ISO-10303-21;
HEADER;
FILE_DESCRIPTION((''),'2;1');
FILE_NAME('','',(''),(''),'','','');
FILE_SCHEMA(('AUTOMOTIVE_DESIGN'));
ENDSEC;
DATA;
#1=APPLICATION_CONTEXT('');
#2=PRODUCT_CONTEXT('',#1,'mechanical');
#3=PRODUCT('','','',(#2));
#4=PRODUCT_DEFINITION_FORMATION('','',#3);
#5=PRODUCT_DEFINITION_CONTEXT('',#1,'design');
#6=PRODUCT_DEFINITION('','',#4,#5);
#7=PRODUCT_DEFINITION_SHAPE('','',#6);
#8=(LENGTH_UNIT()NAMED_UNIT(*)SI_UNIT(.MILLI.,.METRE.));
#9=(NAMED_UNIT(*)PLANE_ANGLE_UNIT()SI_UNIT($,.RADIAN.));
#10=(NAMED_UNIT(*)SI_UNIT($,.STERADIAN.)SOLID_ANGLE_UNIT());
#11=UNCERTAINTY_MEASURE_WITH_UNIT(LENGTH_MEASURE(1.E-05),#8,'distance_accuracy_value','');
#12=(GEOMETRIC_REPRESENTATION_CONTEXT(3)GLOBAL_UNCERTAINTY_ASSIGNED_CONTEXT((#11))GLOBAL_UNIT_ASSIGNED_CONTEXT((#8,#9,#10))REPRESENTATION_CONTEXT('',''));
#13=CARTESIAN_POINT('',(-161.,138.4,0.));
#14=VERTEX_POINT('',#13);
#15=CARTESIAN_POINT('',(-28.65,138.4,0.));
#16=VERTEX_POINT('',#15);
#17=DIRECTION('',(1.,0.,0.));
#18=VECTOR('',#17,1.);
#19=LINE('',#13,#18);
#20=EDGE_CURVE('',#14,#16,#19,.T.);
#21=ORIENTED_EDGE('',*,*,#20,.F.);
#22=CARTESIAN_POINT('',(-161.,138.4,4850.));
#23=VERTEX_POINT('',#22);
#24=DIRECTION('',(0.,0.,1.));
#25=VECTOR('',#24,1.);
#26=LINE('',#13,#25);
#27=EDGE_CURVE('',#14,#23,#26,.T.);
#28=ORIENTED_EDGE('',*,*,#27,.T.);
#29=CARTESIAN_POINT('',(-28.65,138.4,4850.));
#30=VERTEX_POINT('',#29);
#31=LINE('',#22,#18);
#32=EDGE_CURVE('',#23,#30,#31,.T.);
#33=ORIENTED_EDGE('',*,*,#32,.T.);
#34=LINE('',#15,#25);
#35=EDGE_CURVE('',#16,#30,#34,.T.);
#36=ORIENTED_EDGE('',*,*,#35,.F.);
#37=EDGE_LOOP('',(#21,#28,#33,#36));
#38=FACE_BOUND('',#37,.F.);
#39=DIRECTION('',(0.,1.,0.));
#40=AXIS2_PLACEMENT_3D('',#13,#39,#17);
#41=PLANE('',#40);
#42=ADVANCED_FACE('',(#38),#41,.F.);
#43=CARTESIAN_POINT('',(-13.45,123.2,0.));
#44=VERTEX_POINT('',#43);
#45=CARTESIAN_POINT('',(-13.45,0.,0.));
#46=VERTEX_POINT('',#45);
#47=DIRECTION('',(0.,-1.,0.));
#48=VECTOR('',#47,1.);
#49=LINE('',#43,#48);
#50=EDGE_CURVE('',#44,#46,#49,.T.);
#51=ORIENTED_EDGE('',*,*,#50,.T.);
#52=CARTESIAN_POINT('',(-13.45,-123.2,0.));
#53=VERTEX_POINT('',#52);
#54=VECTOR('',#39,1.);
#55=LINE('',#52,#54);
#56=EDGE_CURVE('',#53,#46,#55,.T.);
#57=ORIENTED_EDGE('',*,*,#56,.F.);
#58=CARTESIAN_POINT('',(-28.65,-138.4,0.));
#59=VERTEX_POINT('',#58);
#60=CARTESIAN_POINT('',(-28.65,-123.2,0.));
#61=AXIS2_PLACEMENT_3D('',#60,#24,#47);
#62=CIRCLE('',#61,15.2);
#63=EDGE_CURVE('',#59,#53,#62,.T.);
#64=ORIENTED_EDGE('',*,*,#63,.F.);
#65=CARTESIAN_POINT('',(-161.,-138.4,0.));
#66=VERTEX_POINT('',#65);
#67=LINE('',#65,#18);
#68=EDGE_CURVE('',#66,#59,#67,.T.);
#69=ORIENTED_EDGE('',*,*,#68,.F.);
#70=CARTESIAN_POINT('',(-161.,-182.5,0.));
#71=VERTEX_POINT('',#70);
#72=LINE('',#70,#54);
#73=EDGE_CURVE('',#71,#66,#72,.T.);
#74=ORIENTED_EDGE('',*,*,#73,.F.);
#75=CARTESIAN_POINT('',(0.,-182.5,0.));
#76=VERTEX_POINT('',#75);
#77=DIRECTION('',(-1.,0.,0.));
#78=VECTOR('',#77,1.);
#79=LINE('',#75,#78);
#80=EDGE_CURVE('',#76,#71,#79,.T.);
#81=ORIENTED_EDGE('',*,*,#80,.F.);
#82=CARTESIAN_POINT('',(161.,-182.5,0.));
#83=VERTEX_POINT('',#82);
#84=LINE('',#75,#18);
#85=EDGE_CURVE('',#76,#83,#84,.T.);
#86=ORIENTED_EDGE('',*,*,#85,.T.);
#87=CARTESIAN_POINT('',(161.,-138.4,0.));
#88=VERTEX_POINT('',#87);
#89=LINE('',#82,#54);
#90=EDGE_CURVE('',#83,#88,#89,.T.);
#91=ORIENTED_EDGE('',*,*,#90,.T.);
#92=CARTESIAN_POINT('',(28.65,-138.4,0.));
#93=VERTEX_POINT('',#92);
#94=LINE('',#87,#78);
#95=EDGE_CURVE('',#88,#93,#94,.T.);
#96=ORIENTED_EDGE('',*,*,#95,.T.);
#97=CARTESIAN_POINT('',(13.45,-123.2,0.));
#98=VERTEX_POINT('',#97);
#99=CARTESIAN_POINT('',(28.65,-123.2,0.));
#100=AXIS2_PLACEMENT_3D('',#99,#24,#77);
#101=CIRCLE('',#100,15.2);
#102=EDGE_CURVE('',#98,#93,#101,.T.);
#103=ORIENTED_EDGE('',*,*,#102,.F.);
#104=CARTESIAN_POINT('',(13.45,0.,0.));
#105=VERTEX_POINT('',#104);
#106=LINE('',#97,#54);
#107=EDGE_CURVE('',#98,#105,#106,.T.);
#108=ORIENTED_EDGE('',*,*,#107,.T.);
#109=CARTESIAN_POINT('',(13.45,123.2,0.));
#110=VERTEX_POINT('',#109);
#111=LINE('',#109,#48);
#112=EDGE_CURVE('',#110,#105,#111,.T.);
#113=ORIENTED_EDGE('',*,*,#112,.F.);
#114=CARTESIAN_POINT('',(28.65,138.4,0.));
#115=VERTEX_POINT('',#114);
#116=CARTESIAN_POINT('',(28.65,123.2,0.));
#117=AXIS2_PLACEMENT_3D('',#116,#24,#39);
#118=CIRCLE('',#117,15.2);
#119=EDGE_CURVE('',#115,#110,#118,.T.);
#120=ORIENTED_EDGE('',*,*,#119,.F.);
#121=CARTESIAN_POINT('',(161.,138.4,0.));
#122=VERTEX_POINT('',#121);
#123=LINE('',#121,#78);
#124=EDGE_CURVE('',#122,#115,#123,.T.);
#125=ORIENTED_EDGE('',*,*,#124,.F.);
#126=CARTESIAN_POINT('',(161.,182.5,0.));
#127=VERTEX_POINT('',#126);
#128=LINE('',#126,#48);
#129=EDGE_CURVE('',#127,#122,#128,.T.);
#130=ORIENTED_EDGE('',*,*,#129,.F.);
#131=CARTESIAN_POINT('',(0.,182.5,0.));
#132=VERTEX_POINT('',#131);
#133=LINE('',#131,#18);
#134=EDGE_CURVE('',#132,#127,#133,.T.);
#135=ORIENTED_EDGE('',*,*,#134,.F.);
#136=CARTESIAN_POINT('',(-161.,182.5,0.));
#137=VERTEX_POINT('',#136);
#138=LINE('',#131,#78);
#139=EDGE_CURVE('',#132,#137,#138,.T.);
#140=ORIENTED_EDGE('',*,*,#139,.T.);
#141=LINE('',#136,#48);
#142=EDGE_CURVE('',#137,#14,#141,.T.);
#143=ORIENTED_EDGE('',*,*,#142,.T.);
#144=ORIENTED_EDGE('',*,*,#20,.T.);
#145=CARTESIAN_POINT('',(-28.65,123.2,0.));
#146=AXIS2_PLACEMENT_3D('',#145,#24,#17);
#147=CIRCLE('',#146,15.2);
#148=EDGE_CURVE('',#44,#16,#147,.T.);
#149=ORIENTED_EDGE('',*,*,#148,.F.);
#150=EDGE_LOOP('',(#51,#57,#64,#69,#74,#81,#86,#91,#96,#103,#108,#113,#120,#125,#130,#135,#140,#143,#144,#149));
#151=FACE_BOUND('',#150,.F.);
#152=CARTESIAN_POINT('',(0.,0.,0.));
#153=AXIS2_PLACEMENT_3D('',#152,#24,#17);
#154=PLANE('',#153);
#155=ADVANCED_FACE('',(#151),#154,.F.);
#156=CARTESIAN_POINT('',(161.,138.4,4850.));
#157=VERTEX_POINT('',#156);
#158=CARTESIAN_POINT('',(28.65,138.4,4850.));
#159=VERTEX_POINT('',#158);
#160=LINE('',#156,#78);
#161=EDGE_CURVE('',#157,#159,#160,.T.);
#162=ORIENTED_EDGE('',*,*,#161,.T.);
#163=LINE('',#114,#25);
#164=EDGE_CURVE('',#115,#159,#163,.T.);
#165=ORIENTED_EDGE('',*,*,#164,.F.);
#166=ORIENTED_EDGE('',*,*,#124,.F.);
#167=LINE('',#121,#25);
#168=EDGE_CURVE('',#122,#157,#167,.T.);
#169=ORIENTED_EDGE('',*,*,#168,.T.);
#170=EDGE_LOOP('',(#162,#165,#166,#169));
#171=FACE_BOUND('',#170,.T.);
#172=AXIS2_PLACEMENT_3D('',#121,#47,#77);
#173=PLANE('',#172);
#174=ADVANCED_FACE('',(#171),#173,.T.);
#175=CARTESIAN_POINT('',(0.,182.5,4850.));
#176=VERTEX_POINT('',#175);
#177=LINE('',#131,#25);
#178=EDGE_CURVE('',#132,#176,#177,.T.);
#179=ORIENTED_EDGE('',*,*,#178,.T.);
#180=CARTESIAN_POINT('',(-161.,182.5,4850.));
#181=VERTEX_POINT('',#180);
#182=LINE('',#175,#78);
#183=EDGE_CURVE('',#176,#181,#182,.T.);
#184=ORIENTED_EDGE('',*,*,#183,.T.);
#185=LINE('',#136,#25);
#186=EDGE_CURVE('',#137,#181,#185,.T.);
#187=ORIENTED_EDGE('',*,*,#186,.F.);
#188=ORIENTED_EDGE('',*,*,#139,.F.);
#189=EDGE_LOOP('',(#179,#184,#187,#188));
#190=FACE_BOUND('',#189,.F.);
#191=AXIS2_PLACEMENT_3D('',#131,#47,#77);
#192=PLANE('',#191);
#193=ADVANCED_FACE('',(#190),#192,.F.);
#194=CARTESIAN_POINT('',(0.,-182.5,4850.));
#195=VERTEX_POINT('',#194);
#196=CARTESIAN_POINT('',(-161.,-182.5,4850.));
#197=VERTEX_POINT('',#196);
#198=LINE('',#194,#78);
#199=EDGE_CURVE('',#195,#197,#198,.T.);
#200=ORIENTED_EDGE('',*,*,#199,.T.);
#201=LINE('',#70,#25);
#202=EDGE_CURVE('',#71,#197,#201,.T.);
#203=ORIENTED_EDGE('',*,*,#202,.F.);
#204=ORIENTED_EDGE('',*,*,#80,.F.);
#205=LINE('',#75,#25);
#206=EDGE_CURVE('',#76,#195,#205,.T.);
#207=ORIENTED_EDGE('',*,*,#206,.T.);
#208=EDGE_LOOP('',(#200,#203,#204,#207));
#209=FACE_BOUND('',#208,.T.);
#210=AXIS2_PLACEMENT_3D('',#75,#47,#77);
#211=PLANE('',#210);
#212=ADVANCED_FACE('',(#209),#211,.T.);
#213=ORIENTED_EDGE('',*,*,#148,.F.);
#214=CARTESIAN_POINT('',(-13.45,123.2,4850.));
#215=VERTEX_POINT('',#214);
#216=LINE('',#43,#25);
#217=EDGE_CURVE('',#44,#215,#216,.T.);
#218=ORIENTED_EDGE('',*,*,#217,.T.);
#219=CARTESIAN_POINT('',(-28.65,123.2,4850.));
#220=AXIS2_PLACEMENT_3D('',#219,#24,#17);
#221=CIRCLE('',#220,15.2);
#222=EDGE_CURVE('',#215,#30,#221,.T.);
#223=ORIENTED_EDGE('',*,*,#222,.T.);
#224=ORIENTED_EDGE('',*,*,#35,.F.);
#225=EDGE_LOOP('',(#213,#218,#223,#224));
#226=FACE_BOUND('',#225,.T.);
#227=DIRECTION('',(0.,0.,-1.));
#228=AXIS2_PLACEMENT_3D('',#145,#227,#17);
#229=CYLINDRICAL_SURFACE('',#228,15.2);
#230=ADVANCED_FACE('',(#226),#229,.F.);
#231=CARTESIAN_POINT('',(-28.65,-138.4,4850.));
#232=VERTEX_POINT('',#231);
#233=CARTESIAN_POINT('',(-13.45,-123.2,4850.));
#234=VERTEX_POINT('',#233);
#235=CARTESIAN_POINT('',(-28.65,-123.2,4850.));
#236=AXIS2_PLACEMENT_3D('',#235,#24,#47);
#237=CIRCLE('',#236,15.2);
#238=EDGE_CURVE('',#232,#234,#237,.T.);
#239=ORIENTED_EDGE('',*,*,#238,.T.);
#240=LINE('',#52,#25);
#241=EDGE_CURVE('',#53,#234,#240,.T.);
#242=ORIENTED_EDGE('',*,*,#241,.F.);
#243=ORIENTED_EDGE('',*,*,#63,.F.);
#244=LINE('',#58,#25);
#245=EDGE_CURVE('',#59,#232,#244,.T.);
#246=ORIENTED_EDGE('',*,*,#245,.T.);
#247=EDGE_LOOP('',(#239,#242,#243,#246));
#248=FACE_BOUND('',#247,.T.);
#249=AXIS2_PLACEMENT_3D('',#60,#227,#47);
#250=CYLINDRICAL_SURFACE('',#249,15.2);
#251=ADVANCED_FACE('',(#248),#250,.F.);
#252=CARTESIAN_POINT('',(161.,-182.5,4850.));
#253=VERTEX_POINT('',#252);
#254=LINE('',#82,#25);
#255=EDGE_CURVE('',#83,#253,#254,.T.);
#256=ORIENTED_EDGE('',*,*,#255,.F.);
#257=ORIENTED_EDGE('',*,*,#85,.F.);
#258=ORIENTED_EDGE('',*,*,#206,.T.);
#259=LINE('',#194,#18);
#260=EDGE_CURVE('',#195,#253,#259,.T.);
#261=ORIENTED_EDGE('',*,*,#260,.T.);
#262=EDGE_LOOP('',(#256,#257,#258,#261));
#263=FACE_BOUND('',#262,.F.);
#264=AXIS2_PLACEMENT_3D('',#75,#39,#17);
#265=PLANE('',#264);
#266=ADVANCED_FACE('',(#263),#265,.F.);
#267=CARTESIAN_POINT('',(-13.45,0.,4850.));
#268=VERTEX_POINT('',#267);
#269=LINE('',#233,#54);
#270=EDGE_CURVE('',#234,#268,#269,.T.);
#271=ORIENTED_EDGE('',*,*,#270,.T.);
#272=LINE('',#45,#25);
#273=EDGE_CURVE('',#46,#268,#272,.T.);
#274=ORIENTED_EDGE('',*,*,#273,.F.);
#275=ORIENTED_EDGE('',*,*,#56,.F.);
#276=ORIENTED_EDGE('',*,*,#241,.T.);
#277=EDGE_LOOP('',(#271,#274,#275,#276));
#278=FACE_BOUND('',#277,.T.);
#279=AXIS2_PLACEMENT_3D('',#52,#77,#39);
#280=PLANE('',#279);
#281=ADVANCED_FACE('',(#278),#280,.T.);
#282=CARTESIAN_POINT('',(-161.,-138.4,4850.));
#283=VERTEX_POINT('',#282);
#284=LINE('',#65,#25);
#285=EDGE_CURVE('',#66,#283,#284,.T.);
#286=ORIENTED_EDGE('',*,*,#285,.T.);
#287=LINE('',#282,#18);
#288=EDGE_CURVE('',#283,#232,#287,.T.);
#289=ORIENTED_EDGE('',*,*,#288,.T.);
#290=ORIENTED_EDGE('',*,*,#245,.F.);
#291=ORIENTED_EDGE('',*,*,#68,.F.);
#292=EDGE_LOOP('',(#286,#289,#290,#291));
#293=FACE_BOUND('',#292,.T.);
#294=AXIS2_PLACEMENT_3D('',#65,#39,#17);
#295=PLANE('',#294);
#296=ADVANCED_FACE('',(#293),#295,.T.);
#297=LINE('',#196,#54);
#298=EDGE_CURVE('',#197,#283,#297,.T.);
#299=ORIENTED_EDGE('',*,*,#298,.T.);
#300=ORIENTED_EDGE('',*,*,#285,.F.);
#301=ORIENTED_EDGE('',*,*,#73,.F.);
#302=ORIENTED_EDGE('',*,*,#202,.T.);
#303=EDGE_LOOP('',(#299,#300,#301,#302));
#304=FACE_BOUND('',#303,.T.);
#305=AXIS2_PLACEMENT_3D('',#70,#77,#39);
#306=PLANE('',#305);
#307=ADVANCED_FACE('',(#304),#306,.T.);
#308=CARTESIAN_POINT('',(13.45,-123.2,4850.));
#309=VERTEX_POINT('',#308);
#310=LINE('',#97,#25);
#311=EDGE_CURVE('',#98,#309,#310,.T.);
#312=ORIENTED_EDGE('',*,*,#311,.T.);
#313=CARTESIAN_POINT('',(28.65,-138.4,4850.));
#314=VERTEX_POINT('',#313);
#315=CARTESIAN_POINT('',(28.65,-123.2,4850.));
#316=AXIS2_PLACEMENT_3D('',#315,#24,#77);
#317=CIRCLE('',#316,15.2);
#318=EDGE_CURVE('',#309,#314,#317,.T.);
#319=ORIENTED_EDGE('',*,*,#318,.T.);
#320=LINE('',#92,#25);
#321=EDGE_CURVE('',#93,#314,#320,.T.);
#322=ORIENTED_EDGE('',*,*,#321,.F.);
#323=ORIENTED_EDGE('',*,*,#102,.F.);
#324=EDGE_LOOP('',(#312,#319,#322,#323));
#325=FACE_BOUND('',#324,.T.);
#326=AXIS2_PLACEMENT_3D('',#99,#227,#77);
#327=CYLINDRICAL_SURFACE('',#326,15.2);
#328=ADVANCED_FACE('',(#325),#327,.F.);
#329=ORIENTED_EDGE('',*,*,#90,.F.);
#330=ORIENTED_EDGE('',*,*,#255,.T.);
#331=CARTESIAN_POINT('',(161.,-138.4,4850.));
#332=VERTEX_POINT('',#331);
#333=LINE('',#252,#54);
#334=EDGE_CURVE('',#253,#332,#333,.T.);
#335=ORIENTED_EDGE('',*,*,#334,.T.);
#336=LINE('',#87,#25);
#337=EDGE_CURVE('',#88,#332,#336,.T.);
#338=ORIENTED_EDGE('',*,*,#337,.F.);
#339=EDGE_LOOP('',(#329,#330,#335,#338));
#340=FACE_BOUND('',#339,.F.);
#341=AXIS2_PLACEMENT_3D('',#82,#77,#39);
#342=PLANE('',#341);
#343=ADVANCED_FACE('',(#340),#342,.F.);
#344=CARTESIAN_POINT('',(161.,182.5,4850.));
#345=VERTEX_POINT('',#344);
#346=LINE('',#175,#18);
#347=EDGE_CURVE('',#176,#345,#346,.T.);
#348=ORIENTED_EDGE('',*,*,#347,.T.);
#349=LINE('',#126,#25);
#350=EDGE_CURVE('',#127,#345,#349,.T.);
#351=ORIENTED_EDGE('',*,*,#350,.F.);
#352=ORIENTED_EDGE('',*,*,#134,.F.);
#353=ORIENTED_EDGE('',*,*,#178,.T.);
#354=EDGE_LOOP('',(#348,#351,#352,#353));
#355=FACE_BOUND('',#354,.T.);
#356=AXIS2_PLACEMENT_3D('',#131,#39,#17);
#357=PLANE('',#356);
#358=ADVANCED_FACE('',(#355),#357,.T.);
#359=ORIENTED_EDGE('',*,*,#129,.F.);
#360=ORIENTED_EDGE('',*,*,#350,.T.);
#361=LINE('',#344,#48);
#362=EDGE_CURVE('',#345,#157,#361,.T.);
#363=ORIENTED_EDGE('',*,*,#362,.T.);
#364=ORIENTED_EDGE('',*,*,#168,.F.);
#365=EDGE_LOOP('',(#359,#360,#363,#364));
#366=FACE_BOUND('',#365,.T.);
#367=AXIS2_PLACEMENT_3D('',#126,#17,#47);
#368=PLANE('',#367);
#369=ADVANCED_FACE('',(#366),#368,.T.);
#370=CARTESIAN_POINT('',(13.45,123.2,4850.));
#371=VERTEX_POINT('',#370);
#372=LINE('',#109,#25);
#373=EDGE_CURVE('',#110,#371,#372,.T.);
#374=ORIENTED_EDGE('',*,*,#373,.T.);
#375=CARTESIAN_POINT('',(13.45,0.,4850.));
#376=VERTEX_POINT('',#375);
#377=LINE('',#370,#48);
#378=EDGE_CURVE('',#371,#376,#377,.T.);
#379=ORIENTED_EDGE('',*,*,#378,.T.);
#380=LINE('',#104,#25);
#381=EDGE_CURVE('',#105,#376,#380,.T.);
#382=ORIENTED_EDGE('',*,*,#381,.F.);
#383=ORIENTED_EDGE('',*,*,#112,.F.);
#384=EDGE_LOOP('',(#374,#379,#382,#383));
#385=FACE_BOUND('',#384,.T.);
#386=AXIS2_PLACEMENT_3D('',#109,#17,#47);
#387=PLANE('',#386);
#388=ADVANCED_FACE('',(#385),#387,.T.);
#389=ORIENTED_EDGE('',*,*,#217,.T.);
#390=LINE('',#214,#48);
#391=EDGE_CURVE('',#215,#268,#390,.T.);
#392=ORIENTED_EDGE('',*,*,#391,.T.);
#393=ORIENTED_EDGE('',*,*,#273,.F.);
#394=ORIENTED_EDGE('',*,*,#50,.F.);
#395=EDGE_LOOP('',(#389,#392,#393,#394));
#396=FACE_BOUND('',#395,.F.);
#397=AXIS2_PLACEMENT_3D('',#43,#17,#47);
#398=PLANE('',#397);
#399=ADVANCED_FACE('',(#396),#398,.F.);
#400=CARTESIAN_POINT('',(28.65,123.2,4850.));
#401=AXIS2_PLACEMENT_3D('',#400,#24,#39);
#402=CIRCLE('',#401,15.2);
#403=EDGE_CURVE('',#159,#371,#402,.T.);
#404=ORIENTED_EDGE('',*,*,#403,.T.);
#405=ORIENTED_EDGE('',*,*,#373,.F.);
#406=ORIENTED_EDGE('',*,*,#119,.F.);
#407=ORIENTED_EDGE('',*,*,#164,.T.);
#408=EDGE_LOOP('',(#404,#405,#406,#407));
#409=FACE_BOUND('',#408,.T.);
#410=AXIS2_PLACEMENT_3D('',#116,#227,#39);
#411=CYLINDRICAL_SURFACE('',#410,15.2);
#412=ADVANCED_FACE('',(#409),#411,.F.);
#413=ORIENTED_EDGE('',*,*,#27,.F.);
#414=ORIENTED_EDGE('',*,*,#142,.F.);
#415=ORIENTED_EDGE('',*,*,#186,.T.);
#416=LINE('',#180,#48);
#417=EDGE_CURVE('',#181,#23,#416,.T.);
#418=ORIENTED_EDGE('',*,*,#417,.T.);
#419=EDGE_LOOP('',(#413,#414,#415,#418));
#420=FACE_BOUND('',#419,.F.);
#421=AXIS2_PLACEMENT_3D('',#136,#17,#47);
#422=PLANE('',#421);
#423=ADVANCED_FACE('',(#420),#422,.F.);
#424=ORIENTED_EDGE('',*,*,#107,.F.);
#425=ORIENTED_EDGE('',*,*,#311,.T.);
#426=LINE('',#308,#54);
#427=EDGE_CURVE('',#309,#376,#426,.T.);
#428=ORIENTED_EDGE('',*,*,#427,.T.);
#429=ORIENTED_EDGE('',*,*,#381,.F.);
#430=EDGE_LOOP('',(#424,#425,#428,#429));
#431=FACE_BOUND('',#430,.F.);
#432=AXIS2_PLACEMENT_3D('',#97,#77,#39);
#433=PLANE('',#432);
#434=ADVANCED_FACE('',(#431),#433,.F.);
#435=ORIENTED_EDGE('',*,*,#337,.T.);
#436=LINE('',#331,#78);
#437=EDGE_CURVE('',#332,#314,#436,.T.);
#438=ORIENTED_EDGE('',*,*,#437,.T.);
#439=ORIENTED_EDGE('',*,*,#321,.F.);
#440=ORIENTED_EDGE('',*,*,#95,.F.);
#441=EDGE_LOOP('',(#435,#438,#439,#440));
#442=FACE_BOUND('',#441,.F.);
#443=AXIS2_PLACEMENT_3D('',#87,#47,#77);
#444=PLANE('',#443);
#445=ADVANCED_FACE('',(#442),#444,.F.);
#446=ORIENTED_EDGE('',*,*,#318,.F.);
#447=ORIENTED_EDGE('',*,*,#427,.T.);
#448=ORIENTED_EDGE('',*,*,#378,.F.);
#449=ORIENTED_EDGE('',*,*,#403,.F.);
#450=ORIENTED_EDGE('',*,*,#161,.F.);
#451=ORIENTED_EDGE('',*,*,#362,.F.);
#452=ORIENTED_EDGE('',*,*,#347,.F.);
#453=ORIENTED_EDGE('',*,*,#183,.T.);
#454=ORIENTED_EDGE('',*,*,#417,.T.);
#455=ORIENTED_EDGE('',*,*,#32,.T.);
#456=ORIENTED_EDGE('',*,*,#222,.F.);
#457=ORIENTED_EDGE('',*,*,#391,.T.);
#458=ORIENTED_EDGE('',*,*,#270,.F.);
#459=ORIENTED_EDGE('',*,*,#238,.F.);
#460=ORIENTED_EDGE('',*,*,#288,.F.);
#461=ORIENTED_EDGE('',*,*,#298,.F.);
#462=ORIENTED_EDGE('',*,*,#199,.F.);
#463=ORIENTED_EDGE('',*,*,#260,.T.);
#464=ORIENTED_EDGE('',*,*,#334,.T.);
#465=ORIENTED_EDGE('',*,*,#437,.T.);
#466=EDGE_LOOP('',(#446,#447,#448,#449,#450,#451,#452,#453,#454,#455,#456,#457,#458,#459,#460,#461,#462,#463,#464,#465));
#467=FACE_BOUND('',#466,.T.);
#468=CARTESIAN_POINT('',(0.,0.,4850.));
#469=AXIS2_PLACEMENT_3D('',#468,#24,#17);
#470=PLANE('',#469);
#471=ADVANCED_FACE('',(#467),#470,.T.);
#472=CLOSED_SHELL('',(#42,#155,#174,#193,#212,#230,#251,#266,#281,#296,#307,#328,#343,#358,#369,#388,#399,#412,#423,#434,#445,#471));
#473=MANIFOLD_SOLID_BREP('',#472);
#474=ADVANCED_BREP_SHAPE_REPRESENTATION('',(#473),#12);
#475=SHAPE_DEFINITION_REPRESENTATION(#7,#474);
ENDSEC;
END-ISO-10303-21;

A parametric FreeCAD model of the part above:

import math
import FreeCAD as App
import Part
import Sketcher
from FreeCAD import Vector
Q = App.Units.Quantity

doc = App.newDocument("Part")
params = doc.addObject("Spreadsheet::Sheet", "Params")
for row, (alias, value) in enumerate([
    ("sketch1_radius", "15.2 mm"),
    ("sketch1_height", "44.1 mm"),
    ("pad1_length", "4850 mm"),
], start=1):
    params.set(f"A{row}", alias)
    params.set(f"B{row}", "=" + value)
    params.setAlias(f"B{row}", alias)

body = doc.addObject("PartDesign::Body", "Body")

# Sketch on XY plane
sketch1 = body.newObject("Sketcher::SketchObject", "Sketch")
sketch1.AttachmentSupport = (doc.getObject("XY_Plane"), [""])
sketch1.MapMode = "FlatFace"
sketch1.addGeometry([
    Part.LineSegment(Vector(-161, -138, 0), Vector(-161, -182, 0)),  # 0
    Part.LineSegment(Vector(-161, -182, 0), Vector(161, -182, 0)),  # 1
    Part.LineSegment(Vector(161, -182, 0), Vector(161, -138, 0)),  # 2
    Part.LineSegment(Vector(161, -138, 0), Vector(29, -138, 0)),  # 3
    Part.ArcOfCircle(Part.Circle(Vector(29, -123, 0), Vector(0, 0, 1), 15), math.radians(180), math.radians(270)),  # 4
    Part.LineSegment(Vector(13, -123, 0), Vector(13, 123, 0)),  # 5
    Part.ArcOfCircle(Part.Circle(Vector(29, 123, 0), Vector(0, 0, 1), 15), math.radians(90), math.radians(180)),  # 6
    Part.LineSegment(Vector(29, 138, 0), Vector(161, 138, 0)),  # 7
    Part.LineSegment(Vector(161, 138, 0), Vector(161, 182, 0)),  # 8
    Part.LineSegment(Vector(161, 182, 0), Vector(-161, 182, 0)),  # 9
    Part.LineSegment(Vector(-161, 182, 0), Vector(-161, 138, 0)),  # 10
    Part.LineSegment(Vector(-161, 138, 0), Vector(-29, 138, 0)),  # 11
    Part.ArcOfCircle(Part.Circle(Vector(-29, 123, 0), Vector(0, 0, 1), 15), math.radians(0), math.radians(90)),  # 12
    Part.LineSegment(Vector(-13, 123, 0), Vector(-13, -123, 0)),  # 13
    Part.ArcOfCircle(Part.Circle(Vector(-29, -123, 0), Vector(0, 0, 1), 15), math.radians(-90), math.radians(0)),  # 14
    Part.LineSegment(Vector(-29, -138, 0), Vector(-161, -138, 0)),  # 15
], False)
sketch1.addConstraint([
    Sketcher.Constraint("Coincident", 0, 2, 1, 1),
    Sketcher.Constraint("Coincident", 1, 2, 2, 1),
    Sketcher.Constraint("Coincident", 2, 2, 3, 1),
    Sketcher.Constraint("Tangent", 3, 2, 4, 2),
    Sketcher.Constraint("Tangent", 4, 1, 5, 1),
    Sketcher.Constraint("Tangent", 5, 2, 6, 2),
    Sketcher.Constraint("Tangent", 6, 1, 7, 1),
    Sketcher.Constraint("Coincident", 7, 2, 8, 1),
    Sketcher.Constraint("Coincident", 8, 2, 9, 1),
    Sketcher.Constraint("Coincident", 9, 2, 10, 1),
    Sketcher.Constraint("Coincident", 10, 2, 11, 1),
    Sketcher.Constraint("Tangent", 11, 2, 12, 2),
    Sketcher.Constraint("Tangent", 12, 1, 13, 1),
    Sketcher.Constraint("Tangent", 13, 2, 14, 2),
    Sketcher.Constraint("Tangent", 14, 1, 15, 1),
    Sketcher.Constraint("Coincident", 15, 2, 0, 1),
    Sketcher.Constraint("Vertical", 0),
    Sketcher.Constraint("Horizontal", 1),
    Sketcher.Constraint("Vertical", 2),
    Sketcher.Constraint("Horizontal", 3),
    Sketcher.Constraint("Vertical", 5),
    Sketcher.Constraint("Horizontal", 7),
    Sketcher.Constraint("Vertical", 8),
    Sketcher.Constraint("Horizontal", 9),
    Sketcher.Constraint("Vertical", 10),
    Sketcher.Constraint("Horizontal", 11),
    Sketcher.Constraint("Vertical", 13),
    Sketcher.Constraint("Horizontal", 15),
    Sketcher.Constraint("Equal", 4, 6),
    Sketcher.Constraint("Equal", 6, 12),
    Sketcher.Constraint("Equal", 12, 14),
    Sketcher.Constraint("Symmetric", 4, 3, 12, 3, -1, 1),
    Sketcher.Constraint("Symmetric", 0, 2, 8, 2, -1, 1),
    Sketcher.Constraint("Symmetric", 7, 2, 10, 2, -2),
    Sketcher.Constraint("Symmetric", 2, 2, 15, 2, -2),
    Sketcher.Constraint("Radius", 4, Q("15.2 mm")),
    Sketcher.Constraint("DistanceY", 0, 2, 0, 1, Q("44.1 mm")),
    Sketcher.Constraint("DistanceX", 0, 2, -1, 1, Q("161 mm")),
    Sketcher.Constraint("DistanceY", 0, 2, -1, 1, Q("182.5 mm")),
    Sketcher.Constraint("DistanceX", -1, 1, 4, 1, Q("13.45 mm")),
])
sketch1.setExpression("Constraints[35]", "Params.sketch1_radius")
sketch1.setExpression("Constraints[36]", "Params.sketch1_height")
pad1 = body.newObject("PartDesign::Pad", "Pad")
pad1.Profile = sketch1
pad1.setExpression("Length", "Params.pad1_length")

doc.recompute()
